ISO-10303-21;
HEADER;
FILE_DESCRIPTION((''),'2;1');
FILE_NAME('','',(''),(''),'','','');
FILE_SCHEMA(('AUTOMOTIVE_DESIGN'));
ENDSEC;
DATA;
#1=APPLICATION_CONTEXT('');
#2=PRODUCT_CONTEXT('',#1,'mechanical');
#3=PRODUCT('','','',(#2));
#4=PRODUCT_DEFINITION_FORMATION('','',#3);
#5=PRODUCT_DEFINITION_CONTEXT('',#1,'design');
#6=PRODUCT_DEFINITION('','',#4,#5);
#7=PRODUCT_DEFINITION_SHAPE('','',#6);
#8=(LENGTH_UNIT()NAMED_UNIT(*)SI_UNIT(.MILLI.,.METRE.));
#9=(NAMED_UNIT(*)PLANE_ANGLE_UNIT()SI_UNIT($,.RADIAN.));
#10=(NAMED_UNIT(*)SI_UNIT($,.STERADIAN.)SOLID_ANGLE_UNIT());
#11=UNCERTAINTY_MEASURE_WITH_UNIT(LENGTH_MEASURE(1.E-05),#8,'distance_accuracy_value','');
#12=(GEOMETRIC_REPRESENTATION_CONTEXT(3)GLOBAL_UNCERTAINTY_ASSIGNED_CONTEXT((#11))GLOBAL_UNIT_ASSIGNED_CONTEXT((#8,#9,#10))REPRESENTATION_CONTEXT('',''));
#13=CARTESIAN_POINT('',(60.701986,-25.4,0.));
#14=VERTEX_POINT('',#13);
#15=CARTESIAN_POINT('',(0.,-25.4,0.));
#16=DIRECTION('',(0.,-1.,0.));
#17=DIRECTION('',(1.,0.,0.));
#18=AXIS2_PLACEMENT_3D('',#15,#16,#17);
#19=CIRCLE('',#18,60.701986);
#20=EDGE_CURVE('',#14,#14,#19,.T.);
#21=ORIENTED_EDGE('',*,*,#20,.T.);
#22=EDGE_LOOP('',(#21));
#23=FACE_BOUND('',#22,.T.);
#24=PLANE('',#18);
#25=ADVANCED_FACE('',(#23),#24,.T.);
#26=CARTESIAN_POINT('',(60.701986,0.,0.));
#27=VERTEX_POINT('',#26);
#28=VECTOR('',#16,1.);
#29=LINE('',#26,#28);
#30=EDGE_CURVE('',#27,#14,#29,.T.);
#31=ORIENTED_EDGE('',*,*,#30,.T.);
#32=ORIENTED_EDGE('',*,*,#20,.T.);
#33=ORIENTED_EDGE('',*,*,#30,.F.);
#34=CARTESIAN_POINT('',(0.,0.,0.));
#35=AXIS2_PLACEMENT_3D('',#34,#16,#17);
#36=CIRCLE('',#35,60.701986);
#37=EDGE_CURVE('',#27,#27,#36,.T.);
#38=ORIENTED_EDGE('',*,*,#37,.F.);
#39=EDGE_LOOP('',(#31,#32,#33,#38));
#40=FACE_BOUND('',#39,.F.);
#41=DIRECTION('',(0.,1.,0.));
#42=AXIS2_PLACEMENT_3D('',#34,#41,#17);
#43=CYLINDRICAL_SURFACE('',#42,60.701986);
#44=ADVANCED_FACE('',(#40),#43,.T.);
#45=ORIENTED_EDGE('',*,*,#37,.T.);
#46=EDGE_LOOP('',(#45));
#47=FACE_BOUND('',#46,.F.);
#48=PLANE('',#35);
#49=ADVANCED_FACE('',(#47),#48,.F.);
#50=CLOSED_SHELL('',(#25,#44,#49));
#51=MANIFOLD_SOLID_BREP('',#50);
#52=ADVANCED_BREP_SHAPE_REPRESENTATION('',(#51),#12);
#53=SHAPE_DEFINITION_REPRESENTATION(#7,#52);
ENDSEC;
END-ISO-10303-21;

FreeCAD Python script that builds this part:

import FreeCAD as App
import Part
import Sketcher
from FreeCAD import Vector
Q = App.Units.Quantity

doc = App.newDocument("Part")
params = doc.addObject("Spreadsheet::Sheet", "Params")
for row, (alias, value) in enumerate([
    ("pad1_length", "1 in"),
], start=1):
    params.set(f"A{row}", alias)
    params.set(f"B{row}", "=" + value)
    params.setAlias(f"B{row}", alias)

body = doc.addObject("PartDesign::Body", "Body")

# Sketch on XZ plane
sketch1 = body.newObject("Sketcher::SketchObject", "Sketch")
sketch1.AttachmentSupport = (doc.getObject("XZ_Plane"), [""])
sketch1.MapMode = "FlatFace"
sketch1.addGeometry(Part.Circle(Vector(0, 0, 0), Vector(0, 0, 1), 61), False)
sketch1.addConstraint([
    Sketcher.Constraint("Coincident", 0, 3, -1, 1),
    Sketcher.Constraint("Diameter", 0, Q("121.403972 mm")),
])
pad1 = body.newObject("PartDesign::Pad", "Pad")
pad1.Profile = sketch1
pad1.setExpression("Length", "Params.pad1_length")

doc.recompute()
